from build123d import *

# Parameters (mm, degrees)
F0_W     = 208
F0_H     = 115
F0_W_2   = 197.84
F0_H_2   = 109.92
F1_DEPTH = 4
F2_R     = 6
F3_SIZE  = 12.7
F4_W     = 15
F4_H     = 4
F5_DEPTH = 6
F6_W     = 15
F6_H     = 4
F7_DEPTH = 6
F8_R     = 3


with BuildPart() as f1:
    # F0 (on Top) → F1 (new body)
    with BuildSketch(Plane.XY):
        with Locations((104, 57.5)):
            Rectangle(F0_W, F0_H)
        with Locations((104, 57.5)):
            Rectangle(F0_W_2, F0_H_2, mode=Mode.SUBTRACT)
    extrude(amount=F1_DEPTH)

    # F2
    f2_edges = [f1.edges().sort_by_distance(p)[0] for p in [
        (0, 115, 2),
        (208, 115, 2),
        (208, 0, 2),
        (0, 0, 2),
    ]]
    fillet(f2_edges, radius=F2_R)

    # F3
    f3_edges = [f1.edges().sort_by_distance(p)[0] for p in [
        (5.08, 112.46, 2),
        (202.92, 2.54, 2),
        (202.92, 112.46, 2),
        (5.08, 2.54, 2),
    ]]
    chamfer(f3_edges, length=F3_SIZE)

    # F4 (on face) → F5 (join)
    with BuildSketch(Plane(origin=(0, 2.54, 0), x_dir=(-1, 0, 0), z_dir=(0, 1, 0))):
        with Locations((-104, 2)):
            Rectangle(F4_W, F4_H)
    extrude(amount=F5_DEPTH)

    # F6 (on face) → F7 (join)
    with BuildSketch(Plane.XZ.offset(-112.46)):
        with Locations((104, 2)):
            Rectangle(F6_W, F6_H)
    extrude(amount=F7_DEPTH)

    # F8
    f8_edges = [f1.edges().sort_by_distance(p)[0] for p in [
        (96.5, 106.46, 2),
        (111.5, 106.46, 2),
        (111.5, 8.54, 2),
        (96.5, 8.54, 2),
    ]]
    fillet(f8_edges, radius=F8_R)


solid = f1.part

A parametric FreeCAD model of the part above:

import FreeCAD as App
import Part
import Sketcher
from FreeCAD import Vector


def edges_at(feature, points):
    """Names of the edges that pass closest to the given points."""
    edges = feature.Shape.Edges
    near = lambda p: min(range(len(edges)), key=lambda i: edges[i].distToShape(Part.Vertex(*p))[0])
    return sorted({f"Edge{near(p) + 1}" for p in points})

doc = App.newDocument("Part")
body = doc.addObject("PartDesign::Body", "Body")

sketch1 = body.newObject("Sketcher::SketchObject", "Sketch")
sketch1.AttachmentSupport = (doc.getObject("XY_Plane"), [""])
sketch1.MapMode = "FlatFace"
sketch1.addGeometry([
    Part.LineSegment(Vector(0, 115, 0), Vector(0, 0, 0)),
    Part.LineSegment(Vector(0, 0, 0), Vector(208, 0, 0)),
    Part.LineSegment(Vector(208, 0, 0), Vector(208, 115, 0)),
    Part.LineSegment(Vector(208, 115, 0), Vector(0, 115, 0)),
    Part.LineSegment(Vector(203, 3, 0), Vector(5, 3, 0)),
    Part.LineSegment(Vector(5, 3, 0), Vector(5, 112, 0)),
    Part.LineSegment(Vector(5, 112, 0), Vector(203, 112, 0)),
    Part.LineSegment(Vector(203, 112, 0), Vector(203, 3, 0)),
], False)
sketch1.addConstraint([
    Sketcher.Constraint("Coincident", 0, 2, 1, 1),
    Sketcher.Constraint("Coincident", 1, 2, 2, 1),
    Sketcher.Constraint("Coincident", 2, 2, 3, 1),
    Sketcher.Constraint("Coincident", 3, 2, 0, 1),
    Sketcher.Constraint("Coincident", 4, 2, 5, 1),
    Sketcher.Constraint("Coincident", 5, 2, 6, 1),
    Sketcher.Constraint("Coincident", 6, 2, 7, 1),
    Sketcher.Constraint("Coincident", 7, 2, 4, 1),
    Sketcher.Constraint("Vertical", 0),
    Sketcher.Constraint("Horizontal", 1),
    Sketcher.Constraint("Vertical", 2),
    Sketcher.Constraint("Horizontal", 3),
    Sketcher.Constraint("Horizontal", 4),
    Sketcher.Constraint("Vertical", 5),
    Sketcher.Constraint("Horizontal", 6),
    Sketcher.Constraint("Vertical", 7),
    Sketcher.Constraint("Coincident", 0, 2, -1, 1),
    Sketcher.Constraint("DistanceX", 1, 1, 1, 2, 208.0),
    Sketcher.Constraint("DistanceY", 0, 2, 0, 1, 115.0),
    Sketcher.Constraint("DistanceX", 4, 2, 4, 1, 197.84),
    Sketcher.Constraint("DistanceY", 5, 1, 5, 2, 109.92),
    Sketcher.Constraint("DistanceX", -1, 1, 4, 2, 5.08),
    Sketcher.Constraint("DistanceY", -1, 1, 4, 2, 2.54),
])
pad1 = body.newObject("PartDesign::Pad", "Pad")
pad1.Profile = sketch1
pad1.Length = 4
doc.recompute()

fillet = body.newObject("PartDesign::Fillet", "Fillet")
fillet.Base = (pad1, edges_at(pad1, [
    (0, 115, 2),
    (208, 115, 2),
    (208, 0, 2),
    (0, 0, 2),
]))
fillet.Radius = 6
doc.recompute()

chamfer = body.newObject("PartDesign::Chamfer", "Chamfer")
chamfer.Base = (fillet, edges_at(fillet, [
    (5.08, 112.46, 2),
    (202.92, 2.54, 2),
    (202.92, 112.46, 2),
    (5.08, 2.54, 2),
]))
chamfer.Size = 12.7

sketch2 = body.newObject("Sketcher::SketchObject", "Sketch001")
sketch2.AttachmentSupport = (doc.getObject("XZ_Plane"), [""])
sketch2.MapMode = "FlatFace"
sketch2.AttachmentOffset = App.Placement(Vector(0, 0, -2.54), App.Rotation())
sketch2.addGeometry([
    Part.LineSegment(Vector(111.5, 4, 0), Vector(111.5, 0, 0)),
    Part.LineSegment(Vector(111.5, 0, 0), Vector(96.5, 0, 0)),
    Part.LineSegment(Vector(96.5, 0, 0), Vector(96.5, 4, 0)),
    Part.LineSegment(Vector(96.5, 4, 0), Vector(111.5, 4, 0)),
], False)
sketch2.addConstraint([
    Sketcher.Constraint("Coincident", 0, 2, 1, 1),
    Sketcher.Constraint("Coincident", 1, 2, 2, 1),
    Sketcher.Constraint("Coincident", 2, 2, 3, 1),
    Sketcher.Constraint("Coincident", 3, 2, 0, 1),
    Sketcher.Constraint("Vertical", 0),
    Sketcher.Constraint("Horizontal", 1),
    Sketcher.Constraint("Vertical", 2),
    Sketcher.Constraint("Horizontal", 3),
    Sketcher.Constraint("PointOnObject", 0, 2, -1),
    Sketcher.Constraint("DistanceX", 1, 2, 1, 1, 15.0),
    Sketcher.Constraint("DistanceY", 0, 2, 0, 1, 4.0),
    Sketcher.Constraint("DistanceX", -1, 1, 0, 2, 111.5),
])
pad2 = body.newObject("PartDesign::Pad", "Pad001")
pad2.Profile = sketch2
pad2.Length = 6
pad2.Reversed = True

sketch3 = body.newObject("Sketcher::SketchObject", "Sketch002")
sketch3.AttachmentSupport = (doc.getObject("XZ_Plane"), [""])
sketch3.MapMode = "FlatFace"
sketch3.AttachmentOffset = App.Placement(Vector(0, 0, -112.46), App.Rotation())
sketch3.addGeometry([
    Part.LineSegment(Vector(96.5, 4, 0), Vector(96.5, 0, 0)),
    Part.LineSegment(Vector(96.5, 0, 0), Vector(111.5, 0, 0)),
    Part.LineSegment(Vector(111.5, 0, 0), Vector(111.5, 4, 0)),
    Part.LineSegment(Vector(111.5, 4, 0), Vector(96.5, 4, 0)),
], False)
sketch3.addConstraint([
    Sketcher.Constraint("Coincident", 0, 2, 1, 1),
    Sketcher.Constraint("Coincident", 1, 2, 2, 1),
    Sketcher.Constraint("Coincident", 2, 2, 3, 1),
    Sketcher.Constraint("Coincident", 3, 2, 0, 1),
    Sketcher.Constraint("Vertical", 0),
    Sketcher.Constraint("Horizontal", 1),
    Sketcher.Constraint("Vertical", 2),
    Sketcher.Constraint("Horizontal", 3),
    Sketcher.Constraint("PointOnObject", 0, 2, -1),
    Sketcher.Constraint("DistanceX", 1, 1, 1, 2, 15.0),
    Sketcher.Constraint("DistanceY", 0, 2, 0, 1, 4.0),
    Sketcher.Constraint("DistanceX", -1, 1, 0, 2, 96.5),
])
pad3 = body.newObject("PartDesign::Pad", "Pad002")
pad3.Profile = sketch3
pad3.Length = 6
doc.recompute()

fillet2 = body.newObject("PartDesign::Fillet", "Fillet001")
fillet2.Base = (pad3, edges_at(pad3, [
    (96.5, 106.46, 2),
    (111.5, 106.46, 2),
    (111.5, 8.54, 2),
    (96.5, 8.54, 2),
]))
fillet2.Radius = 3

doc.recompute()
